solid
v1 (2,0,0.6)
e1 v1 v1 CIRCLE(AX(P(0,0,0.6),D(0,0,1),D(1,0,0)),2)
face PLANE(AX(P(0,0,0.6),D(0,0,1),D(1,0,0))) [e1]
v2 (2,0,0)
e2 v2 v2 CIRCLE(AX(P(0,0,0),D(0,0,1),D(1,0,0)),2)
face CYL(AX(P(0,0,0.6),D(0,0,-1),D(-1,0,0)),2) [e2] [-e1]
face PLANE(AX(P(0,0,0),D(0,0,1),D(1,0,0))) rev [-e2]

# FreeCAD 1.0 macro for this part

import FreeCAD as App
import Part
import Sketcher
from FreeCAD import Vector
Q = App.Units.Quantity

doc = App.newDocument("Part")
body = doc.addObject("PartDesign::Body", "Body")

# Sketch on XY plane
sketch1 = doc.addObject("Sketcher::SketchObject", "Sketch")
body.addObject(sketch1)
sketch1.AttachmentSupport = (doc.XY_Plane, [""])
sketch1.MapMode = "FlatFace"
sketch1.addGeometry(Part.Circle(Vector(0, 0, 0), Vector(0, 0, 1), 2), False)
sketch1.addConstraint([
    Sketcher.Constraint("Coincident", 0, 3, -1, 1),
    Sketcher.Constraint("Diameter", 0, Q("4 mm")),
])
pad1 = doc.addObject("PartDesign::Pad", "Pad")
body.addObject(pad1)
pad1.Profile = sketch1
pad1.Length = 0.6

doc.recompute()
